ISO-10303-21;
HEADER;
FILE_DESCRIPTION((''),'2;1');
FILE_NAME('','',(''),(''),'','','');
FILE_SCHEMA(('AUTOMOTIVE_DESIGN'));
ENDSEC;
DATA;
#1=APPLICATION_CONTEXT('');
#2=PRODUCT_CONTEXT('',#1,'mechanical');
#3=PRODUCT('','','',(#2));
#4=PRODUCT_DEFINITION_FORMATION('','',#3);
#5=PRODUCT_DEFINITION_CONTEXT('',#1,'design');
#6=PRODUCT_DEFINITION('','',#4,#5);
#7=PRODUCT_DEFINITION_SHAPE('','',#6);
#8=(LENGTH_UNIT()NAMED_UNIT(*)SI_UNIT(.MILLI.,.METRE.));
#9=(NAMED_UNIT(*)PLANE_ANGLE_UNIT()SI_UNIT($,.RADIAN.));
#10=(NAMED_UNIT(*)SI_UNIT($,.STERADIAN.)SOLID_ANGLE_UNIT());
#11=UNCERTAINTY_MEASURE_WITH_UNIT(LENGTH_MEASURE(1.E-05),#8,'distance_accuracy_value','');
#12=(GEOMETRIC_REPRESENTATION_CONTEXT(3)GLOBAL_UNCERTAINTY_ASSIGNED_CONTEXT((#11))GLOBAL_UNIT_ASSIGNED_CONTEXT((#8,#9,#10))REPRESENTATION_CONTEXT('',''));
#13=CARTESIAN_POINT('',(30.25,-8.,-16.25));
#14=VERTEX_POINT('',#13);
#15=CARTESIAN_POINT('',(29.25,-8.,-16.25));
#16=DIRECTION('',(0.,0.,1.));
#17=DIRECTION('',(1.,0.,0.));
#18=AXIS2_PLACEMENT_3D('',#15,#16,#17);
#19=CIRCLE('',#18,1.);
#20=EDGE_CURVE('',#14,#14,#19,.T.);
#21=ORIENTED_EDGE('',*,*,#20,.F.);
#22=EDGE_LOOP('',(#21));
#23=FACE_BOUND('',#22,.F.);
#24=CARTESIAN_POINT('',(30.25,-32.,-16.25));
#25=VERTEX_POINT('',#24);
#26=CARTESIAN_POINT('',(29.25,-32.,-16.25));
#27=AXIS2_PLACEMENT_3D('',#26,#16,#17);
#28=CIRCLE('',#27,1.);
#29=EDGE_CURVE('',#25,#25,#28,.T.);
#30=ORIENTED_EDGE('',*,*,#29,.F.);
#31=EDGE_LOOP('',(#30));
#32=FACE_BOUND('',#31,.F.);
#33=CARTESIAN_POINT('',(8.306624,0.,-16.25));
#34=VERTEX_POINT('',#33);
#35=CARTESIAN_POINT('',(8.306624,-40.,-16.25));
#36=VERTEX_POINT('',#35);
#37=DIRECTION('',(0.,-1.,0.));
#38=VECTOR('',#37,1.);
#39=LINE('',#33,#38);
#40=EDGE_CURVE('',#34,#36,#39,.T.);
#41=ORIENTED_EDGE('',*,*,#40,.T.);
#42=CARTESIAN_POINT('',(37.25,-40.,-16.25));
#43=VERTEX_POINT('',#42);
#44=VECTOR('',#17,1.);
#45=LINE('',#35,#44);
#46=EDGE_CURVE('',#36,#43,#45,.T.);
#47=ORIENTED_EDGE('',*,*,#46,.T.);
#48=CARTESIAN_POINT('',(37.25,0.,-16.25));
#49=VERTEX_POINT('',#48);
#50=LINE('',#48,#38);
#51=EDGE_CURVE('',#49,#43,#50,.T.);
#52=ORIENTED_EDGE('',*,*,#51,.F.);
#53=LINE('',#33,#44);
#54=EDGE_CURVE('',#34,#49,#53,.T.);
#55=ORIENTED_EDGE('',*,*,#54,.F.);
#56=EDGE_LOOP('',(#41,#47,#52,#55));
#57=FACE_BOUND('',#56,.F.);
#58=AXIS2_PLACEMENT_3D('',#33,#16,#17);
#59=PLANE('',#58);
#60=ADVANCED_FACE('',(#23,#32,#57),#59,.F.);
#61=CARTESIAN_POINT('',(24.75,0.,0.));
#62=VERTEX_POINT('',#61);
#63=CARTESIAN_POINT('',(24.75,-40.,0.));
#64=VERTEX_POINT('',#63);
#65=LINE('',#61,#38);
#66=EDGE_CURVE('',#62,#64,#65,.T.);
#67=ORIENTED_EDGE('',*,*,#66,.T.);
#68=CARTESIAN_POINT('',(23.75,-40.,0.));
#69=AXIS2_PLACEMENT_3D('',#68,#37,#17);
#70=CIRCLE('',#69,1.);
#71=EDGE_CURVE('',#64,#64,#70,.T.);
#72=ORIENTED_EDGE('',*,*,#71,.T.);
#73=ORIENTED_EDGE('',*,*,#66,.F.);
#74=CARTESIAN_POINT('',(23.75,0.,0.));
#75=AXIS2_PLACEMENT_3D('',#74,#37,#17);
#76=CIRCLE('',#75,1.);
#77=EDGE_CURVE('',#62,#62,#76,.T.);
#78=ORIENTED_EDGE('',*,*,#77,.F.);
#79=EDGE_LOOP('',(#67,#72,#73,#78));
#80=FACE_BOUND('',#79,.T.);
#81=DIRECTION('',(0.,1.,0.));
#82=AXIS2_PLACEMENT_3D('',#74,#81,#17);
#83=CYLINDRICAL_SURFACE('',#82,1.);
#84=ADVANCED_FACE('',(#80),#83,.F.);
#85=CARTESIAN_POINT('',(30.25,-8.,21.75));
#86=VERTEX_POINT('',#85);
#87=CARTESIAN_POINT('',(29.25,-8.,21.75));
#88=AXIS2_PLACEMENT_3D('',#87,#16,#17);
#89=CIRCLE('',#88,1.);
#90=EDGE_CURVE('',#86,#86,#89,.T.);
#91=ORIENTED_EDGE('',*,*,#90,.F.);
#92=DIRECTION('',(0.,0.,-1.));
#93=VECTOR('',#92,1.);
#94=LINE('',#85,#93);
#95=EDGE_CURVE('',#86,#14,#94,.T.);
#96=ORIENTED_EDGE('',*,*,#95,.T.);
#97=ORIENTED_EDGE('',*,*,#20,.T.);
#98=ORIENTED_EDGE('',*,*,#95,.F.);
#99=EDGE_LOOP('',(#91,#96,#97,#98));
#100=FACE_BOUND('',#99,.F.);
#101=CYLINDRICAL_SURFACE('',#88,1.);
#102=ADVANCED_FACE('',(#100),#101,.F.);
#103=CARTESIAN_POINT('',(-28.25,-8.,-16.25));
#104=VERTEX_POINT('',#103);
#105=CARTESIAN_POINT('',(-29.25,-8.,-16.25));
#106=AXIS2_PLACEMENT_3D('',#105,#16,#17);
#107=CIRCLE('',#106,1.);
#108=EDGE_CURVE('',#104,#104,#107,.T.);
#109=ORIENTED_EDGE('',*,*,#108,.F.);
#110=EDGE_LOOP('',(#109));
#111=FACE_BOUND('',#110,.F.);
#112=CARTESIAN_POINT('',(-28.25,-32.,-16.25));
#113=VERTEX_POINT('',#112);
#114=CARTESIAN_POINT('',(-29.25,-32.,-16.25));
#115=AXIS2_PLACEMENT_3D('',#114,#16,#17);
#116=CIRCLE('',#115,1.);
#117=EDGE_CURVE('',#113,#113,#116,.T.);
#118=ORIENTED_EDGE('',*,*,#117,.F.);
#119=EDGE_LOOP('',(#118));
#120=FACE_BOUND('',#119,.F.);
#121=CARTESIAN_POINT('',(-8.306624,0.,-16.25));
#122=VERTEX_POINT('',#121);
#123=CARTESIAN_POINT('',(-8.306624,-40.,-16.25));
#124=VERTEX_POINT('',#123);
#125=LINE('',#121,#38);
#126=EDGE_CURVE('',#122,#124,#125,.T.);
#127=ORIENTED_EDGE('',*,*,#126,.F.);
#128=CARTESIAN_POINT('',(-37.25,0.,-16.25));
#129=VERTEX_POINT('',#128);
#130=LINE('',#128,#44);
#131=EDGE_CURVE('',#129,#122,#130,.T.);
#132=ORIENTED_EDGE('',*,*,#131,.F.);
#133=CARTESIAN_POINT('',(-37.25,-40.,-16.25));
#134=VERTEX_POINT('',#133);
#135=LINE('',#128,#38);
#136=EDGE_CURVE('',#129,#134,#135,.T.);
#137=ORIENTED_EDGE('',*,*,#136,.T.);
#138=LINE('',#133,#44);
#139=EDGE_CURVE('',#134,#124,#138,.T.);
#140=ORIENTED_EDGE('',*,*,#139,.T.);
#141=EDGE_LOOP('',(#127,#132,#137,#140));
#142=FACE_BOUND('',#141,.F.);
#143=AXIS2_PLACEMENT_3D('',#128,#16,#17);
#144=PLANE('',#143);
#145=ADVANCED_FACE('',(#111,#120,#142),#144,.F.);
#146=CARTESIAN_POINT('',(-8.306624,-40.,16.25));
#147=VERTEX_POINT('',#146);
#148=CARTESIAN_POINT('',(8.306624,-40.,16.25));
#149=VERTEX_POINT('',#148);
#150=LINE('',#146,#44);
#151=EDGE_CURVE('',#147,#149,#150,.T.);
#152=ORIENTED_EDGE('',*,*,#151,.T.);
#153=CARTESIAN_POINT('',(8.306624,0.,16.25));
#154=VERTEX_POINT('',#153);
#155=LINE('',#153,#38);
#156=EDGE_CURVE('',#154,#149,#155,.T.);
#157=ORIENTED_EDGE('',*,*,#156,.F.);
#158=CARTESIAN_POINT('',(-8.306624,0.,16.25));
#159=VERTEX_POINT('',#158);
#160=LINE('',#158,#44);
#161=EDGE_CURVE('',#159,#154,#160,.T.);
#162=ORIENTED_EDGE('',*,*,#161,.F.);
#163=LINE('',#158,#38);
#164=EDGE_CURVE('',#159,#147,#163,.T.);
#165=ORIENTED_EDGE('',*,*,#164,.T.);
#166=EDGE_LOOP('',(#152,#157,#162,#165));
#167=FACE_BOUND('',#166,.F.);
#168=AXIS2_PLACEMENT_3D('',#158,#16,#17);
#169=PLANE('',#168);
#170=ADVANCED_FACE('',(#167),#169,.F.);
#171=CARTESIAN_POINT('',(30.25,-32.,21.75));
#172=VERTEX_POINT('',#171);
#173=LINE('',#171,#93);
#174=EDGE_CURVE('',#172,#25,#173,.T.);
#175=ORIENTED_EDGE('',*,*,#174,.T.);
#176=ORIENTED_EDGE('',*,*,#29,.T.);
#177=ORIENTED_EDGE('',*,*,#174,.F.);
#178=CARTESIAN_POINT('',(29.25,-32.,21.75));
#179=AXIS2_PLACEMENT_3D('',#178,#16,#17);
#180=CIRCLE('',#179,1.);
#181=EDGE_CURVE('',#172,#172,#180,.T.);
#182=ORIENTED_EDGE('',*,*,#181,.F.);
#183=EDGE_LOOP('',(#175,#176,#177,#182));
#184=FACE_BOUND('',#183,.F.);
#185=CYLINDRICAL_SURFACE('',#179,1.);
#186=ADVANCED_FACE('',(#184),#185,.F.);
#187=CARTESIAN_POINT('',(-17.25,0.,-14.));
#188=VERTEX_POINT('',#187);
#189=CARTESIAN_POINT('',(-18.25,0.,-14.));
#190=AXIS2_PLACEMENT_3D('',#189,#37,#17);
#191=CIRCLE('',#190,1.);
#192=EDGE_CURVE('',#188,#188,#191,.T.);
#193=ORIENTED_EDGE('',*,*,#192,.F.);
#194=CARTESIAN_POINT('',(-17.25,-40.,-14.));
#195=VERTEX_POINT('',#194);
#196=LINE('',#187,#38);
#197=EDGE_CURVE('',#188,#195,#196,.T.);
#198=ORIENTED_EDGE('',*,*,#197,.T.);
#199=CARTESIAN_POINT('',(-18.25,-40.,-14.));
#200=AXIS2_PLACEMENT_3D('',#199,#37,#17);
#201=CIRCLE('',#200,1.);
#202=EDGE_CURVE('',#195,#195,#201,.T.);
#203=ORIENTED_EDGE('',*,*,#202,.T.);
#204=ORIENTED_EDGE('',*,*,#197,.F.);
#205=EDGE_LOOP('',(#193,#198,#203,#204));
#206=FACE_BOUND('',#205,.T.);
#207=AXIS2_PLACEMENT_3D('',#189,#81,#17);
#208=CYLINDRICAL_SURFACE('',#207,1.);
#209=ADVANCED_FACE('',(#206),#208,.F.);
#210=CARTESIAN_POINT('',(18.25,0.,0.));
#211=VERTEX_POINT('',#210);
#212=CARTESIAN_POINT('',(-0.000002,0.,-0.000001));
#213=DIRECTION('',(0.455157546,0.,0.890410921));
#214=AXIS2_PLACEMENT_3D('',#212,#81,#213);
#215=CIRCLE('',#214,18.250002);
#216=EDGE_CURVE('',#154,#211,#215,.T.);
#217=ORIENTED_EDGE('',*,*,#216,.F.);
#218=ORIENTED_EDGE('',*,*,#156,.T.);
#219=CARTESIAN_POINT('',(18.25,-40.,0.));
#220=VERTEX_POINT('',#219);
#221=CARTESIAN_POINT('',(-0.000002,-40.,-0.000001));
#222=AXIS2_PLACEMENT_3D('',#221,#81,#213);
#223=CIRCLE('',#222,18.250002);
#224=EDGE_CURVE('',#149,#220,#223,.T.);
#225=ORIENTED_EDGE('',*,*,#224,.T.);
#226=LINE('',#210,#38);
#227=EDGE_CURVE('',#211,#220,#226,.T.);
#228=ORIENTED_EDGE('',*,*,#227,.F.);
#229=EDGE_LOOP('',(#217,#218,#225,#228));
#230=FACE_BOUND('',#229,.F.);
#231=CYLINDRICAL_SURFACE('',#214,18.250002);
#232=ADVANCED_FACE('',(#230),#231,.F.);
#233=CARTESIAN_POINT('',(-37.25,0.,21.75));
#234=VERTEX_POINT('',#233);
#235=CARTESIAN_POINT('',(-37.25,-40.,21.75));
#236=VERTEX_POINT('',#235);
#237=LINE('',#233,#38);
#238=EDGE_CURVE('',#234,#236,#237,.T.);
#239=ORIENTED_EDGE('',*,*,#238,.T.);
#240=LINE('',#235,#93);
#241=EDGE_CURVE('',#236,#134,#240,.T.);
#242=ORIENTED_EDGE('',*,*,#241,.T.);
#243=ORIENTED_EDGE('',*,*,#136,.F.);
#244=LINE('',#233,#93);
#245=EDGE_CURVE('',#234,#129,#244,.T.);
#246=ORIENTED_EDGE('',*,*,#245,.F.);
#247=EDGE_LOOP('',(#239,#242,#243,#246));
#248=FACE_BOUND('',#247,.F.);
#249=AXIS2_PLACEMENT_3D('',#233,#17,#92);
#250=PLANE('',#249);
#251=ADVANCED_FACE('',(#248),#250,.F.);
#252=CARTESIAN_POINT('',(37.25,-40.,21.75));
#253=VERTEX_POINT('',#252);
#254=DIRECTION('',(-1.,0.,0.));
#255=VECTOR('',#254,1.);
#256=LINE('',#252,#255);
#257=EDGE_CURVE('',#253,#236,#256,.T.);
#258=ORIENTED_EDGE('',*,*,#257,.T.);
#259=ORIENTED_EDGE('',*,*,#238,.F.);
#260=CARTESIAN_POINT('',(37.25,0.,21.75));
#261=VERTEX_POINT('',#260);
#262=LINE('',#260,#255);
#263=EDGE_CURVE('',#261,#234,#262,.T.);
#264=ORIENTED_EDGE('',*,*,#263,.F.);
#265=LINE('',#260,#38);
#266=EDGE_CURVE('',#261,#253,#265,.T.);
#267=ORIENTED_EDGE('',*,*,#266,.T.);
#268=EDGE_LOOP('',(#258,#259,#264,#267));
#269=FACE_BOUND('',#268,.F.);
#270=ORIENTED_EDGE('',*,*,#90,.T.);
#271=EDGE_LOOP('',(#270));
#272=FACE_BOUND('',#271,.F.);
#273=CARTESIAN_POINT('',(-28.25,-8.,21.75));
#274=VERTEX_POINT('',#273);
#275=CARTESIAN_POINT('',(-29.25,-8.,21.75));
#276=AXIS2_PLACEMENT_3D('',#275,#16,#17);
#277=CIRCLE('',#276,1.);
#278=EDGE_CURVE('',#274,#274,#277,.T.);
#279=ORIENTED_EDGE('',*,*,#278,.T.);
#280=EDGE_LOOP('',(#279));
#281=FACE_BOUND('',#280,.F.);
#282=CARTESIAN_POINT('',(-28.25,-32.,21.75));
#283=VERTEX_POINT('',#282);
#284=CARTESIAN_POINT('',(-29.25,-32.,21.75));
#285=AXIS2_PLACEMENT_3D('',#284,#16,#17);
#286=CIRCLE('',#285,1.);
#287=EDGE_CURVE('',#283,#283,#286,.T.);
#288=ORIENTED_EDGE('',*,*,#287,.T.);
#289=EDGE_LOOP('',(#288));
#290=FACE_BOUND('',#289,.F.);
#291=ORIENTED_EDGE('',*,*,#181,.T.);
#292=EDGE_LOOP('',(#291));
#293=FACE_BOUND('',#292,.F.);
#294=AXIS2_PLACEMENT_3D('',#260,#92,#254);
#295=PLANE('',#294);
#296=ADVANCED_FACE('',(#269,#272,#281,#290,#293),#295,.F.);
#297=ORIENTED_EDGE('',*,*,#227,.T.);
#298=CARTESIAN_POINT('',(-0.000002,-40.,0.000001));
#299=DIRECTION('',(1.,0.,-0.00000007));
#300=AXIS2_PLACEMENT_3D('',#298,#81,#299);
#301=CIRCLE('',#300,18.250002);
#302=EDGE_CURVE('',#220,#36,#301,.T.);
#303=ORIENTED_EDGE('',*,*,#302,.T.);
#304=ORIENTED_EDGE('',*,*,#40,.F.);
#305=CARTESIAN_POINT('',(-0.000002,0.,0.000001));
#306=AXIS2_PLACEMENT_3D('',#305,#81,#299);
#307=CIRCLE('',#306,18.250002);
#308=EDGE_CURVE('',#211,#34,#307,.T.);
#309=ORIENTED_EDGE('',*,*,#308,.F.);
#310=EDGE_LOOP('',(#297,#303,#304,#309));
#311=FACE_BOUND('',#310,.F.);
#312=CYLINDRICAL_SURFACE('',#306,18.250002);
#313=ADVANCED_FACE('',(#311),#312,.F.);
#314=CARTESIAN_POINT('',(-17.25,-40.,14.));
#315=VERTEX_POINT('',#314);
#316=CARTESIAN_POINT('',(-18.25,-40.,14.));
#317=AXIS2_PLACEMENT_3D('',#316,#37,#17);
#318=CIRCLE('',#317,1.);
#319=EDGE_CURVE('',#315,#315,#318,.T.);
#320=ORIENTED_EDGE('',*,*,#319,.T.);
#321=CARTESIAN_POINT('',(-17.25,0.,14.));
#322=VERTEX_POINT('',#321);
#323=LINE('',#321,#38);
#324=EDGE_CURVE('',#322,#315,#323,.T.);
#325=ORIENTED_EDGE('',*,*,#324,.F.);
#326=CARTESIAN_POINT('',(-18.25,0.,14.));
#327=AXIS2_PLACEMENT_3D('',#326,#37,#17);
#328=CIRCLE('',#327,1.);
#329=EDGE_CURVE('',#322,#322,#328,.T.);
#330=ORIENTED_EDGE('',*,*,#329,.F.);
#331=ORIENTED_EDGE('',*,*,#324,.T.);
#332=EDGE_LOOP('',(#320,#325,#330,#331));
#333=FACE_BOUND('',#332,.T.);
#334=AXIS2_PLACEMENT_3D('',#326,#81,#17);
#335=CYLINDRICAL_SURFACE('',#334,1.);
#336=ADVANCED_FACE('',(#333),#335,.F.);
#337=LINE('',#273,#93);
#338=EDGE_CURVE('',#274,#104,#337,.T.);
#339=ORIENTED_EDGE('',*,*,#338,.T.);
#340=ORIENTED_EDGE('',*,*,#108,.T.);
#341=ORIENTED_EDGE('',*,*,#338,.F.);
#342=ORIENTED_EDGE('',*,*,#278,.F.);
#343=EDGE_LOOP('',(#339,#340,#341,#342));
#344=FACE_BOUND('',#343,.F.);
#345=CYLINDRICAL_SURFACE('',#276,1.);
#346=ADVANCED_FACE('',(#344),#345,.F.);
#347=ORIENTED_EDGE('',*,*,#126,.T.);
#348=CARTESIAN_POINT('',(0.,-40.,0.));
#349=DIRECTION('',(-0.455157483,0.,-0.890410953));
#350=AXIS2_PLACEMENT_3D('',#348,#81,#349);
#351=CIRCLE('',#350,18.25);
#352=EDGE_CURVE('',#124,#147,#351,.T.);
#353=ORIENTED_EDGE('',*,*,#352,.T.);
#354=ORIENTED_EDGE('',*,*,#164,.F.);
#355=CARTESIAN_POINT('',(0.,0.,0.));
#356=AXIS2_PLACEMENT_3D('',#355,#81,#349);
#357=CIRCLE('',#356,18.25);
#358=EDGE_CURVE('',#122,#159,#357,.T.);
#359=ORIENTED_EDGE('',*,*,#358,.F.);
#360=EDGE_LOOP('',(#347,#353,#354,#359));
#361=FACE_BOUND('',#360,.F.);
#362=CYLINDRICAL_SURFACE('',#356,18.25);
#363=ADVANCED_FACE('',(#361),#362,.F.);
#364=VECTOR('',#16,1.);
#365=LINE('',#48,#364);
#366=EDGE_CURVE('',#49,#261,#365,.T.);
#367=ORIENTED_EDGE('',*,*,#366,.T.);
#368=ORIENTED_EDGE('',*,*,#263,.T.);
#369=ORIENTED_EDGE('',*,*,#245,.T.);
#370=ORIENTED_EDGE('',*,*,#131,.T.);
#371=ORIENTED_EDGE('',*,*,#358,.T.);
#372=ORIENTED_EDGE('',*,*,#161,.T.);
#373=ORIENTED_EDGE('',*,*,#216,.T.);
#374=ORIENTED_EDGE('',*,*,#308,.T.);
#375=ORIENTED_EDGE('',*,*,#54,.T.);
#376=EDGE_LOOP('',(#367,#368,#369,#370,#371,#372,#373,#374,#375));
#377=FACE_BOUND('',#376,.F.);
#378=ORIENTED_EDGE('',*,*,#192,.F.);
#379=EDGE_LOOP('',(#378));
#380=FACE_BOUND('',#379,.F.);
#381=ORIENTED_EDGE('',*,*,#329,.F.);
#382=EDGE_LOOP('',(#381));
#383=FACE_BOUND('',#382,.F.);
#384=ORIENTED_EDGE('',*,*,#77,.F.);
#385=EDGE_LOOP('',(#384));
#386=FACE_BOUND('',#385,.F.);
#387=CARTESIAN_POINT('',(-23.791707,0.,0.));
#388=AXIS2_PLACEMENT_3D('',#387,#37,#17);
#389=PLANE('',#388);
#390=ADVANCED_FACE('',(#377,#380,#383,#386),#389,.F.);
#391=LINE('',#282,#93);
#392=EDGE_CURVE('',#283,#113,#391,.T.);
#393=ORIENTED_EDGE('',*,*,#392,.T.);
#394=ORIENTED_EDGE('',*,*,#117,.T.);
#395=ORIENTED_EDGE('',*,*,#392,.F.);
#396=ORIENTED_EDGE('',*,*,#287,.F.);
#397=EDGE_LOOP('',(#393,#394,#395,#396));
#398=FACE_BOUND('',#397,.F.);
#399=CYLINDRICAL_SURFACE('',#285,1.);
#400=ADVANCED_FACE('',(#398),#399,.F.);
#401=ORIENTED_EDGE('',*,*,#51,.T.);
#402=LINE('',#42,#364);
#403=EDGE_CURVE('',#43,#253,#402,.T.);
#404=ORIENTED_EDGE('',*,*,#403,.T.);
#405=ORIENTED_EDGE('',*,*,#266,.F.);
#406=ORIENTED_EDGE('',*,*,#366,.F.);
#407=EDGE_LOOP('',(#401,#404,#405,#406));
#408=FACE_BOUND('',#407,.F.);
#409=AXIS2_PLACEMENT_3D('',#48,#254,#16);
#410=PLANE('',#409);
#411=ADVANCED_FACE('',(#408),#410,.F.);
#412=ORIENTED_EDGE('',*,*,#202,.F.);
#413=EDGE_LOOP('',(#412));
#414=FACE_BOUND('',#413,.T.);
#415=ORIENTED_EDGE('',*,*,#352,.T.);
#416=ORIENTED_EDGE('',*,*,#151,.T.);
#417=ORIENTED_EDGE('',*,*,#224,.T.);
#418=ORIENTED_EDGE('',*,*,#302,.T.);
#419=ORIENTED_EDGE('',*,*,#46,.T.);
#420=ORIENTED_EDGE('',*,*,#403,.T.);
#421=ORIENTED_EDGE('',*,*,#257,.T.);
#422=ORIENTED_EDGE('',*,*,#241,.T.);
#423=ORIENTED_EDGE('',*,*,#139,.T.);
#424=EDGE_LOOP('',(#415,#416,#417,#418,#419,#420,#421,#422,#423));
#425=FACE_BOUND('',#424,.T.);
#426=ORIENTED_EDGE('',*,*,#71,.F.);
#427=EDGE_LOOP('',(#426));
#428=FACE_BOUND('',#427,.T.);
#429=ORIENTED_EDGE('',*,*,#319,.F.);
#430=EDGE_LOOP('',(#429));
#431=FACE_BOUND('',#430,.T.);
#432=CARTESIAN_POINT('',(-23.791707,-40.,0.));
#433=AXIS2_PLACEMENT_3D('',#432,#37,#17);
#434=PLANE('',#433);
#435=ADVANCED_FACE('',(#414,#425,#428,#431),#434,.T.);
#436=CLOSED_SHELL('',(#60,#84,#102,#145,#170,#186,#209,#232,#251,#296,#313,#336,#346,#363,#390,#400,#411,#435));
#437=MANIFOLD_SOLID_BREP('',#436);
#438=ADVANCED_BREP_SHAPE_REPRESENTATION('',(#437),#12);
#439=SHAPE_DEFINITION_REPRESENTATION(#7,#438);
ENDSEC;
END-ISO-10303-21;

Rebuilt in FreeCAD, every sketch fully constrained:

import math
import FreeCAD as App
import Part
import Sketcher
from FreeCAD import Vector
Q = App.Units.Quantity

doc = App.newDocument("Part")
body = doc.addObject("PartDesign::Body", "Body")

sketch1 = body.newObject("Sketcher::SketchObject", "Sketch")
sketch1.AttachmentSupport = (doc.getObject("XZ_Plane"), [""])
sketch1.MapMode = "FlatFace"
sketch1.addGeometry([
    Part.ArcOfCircle(Part.Circle(Vector(0, 0, 0), Vector(0, 0, 1), 18.25), math.radians(117.075067), math.radians(242.924933)),
    Part.LineSegment(Vector(-8.306624, 16.25, 0), Vector(8.306624, 16.25, 0)),
    Part.ArcOfCircle(Part.Circle(Vector(-0.000002, -0.000001, 0), Vector(0, 0, 1), 18.250002), math.radians(0.000004), math.radians(62.924929)),
    Part.ArcOfCircle(Part.Circle(Vector(-0.000002, 0.000001, 0), Vector(0, 0, 1), 18.250002), math.radians(-62.924929), math.radians(-0.000004)),
    Part.LineSegment(Vector(8.306624, -16.25, 0), Vector(37.25, -16.25, 0)),
    Part.LineSegment(Vector(37.25, -16.25, 0), Vector(37.25, 21.75, 0)),
    Part.LineSegment(Vector(37.25, 21.75, 0), Vector(-37.25, 21.75, 0)),
    Part.LineSegment(Vector(-37.25, 21.75, 0), Vector(-37.25, -16.25, 0)),
    Part.LineSegment(Vector(-37.25, -16.25, 0), Vector(-8.306624, -16.25, 0)),
    Part.Circle(Vector(-18.25, -14, 0), Vector(0, 0, 1), 1),
    Part.Circle(Vector(-18.25, 14, 0), Vector(0, 0, 1), 1),
    Part.Circle(Vector(23.75, 0, 0), Vector(0, 0, 1), 1),
], False)
sketch1.addConstraint([
    Sketcher.Constraint("Coincident", 0, 1, 1, 1),
    Sketcher.Constraint("Coincident", 1, 2, 2, 2),
    Sketcher.Constraint("Tangent", 2, 1, 3, 2),
    Sketcher.Constraint("Coincident", 3, 1, 4, 1),
    Sketcher.Constraint("Coincident", 4, 2, 5, 1),
    Sketcher.Constraint("Coincident", 5, 2, 6, 1),
    Sketcher.Constraint("Coincident", 6, 2, 7, 1),
    Sketcher.Constraint("Coincident", 7, 2, 8, 1),
    Sketcher.Constraint("Coincident", 8, 2, 0, 2),
    Sketcher.Constraint("Horizontal", 1),
    Sketcher.Constraint("Horizontal", 4),
    Sketcher.Constraint("Vertical", 5),
    Sketcher.Constraint("Horizontal", 6),
    Sketcher.Constraint("Vertical", 7),
    Sketcher.Constraint("Horizontal", 8),
    Sketcher.Constraint("Coincident", 0, 3, -1, 1),
    Sketcher.Constraint("Coincident", 2, 3, -1, 1),
    Sketcher.Constraint("Equal", 2, 3),
    Sketcher.Constraint("Equal", 9, 10),
    Sketcher.Constraint("Equal", 10, 11),
    Sketcher.Constraint("Symmetric", 0, 1, 3, 1, -1, 1),
    Sketcher.Constraint("Symmetric", 4, 2, 7, 2, -2),
    Sketcher.Constraint("Symmetric", 9, 3, 10, 3, -1),
    Sketcher.Constraint("PointOnObject", 11, 3, -1),
    Sketcher.Constraint("PointOnObject", 2, 1, -1),
    Sketcher.Constraint("Diameter", 9, Q("2 mm")),
    Sketcher.Constraint("DistanceY", 5, 1, 5, 2, Q("38 mm")),
    Sketcher.Constraint("Radius", 0, Q("18.25 mm")),
    Sketcher.Constraint("DistanceX", 6, 2, 6, 1, Q("74.5 mm")),
    Sketcher.Constraint("DistanceY", 9, 3, -1, 1, Q("14 mm")),
    Sketcher.Constraint("DistanceX", 9, 3, 11, 3, Q("42 mm")),
    Sketcher.Constraint("DistanceX", 6, 2, 10, 3, Q("19 mm")),
    Sketcher.Constraint("DistanceY", 1, 2, 5, 2, Q("5.5 mm")),
])
pad1 = body.newObject("PartDesign::Pad", "Pad")
pad1.Profile = sketch1
pad1.Length = 40

sketch2 = body.newObject("Sketcher::SketchObject", "Sketch001")
sketch2.AttachmentSupport = (doc.getObject("XY_Plane"), [""])
sketch2.MapMode = "FlatFace"
sketch2.AttachmentOffset = App.Placement(Vector(0, 0, 21.75), App.Rotation())
sketch2.addGeometry([
    Part.Circle(Vector(-29.25, -8, 0), Vector(0, 0, 1), 1),
    Part.Circle(Vector(-29.25, -32, 0), Vector(0, 0, 1), 1),
    Part.Circle(Vector(29.25, -32, 0), Vector(0, 0, 1), 1),
    Part.Circle(Vector(29.25, -8, 0), Vector(0, 0, 1), 1),
], False)
sketch2.addConstraint([
    Sketcher.Constraint("Equal", 0, 1),
    Sketcher.Constraint("Equal", 1, 2),
    Sketcher.Constraint("Equal", 2, 3),
    Sketcher.Constraint("Symmetric", 1, 3, 2, 3, -2),
    Sketcher.Constraint("Symmetric", 0, 3, 3, 3, -2),
    Sketcher.Constraint("Vertical", 0, 3, 1, 3),
    Sketcher.Constraint("Diameter", 0, Q("2 mm")),
    Sketcher.Constraint("DistanceY", 0, 3, -1, 1, Q("8 mm")),
    Sketcher.Constraint("DistanceY", 1, 3, -1, 1, Q("32 mm")),
    Sketcher.Constraint("DistanceX", 1, 3, 2, 3, Q("58.5 mm")),
])
pocket1 = body.newObject("PartDesign::Pocket", "Pocket")
pocket1.Profile = sketch2
pocket1.Length = 46.1

doc.recompute()
